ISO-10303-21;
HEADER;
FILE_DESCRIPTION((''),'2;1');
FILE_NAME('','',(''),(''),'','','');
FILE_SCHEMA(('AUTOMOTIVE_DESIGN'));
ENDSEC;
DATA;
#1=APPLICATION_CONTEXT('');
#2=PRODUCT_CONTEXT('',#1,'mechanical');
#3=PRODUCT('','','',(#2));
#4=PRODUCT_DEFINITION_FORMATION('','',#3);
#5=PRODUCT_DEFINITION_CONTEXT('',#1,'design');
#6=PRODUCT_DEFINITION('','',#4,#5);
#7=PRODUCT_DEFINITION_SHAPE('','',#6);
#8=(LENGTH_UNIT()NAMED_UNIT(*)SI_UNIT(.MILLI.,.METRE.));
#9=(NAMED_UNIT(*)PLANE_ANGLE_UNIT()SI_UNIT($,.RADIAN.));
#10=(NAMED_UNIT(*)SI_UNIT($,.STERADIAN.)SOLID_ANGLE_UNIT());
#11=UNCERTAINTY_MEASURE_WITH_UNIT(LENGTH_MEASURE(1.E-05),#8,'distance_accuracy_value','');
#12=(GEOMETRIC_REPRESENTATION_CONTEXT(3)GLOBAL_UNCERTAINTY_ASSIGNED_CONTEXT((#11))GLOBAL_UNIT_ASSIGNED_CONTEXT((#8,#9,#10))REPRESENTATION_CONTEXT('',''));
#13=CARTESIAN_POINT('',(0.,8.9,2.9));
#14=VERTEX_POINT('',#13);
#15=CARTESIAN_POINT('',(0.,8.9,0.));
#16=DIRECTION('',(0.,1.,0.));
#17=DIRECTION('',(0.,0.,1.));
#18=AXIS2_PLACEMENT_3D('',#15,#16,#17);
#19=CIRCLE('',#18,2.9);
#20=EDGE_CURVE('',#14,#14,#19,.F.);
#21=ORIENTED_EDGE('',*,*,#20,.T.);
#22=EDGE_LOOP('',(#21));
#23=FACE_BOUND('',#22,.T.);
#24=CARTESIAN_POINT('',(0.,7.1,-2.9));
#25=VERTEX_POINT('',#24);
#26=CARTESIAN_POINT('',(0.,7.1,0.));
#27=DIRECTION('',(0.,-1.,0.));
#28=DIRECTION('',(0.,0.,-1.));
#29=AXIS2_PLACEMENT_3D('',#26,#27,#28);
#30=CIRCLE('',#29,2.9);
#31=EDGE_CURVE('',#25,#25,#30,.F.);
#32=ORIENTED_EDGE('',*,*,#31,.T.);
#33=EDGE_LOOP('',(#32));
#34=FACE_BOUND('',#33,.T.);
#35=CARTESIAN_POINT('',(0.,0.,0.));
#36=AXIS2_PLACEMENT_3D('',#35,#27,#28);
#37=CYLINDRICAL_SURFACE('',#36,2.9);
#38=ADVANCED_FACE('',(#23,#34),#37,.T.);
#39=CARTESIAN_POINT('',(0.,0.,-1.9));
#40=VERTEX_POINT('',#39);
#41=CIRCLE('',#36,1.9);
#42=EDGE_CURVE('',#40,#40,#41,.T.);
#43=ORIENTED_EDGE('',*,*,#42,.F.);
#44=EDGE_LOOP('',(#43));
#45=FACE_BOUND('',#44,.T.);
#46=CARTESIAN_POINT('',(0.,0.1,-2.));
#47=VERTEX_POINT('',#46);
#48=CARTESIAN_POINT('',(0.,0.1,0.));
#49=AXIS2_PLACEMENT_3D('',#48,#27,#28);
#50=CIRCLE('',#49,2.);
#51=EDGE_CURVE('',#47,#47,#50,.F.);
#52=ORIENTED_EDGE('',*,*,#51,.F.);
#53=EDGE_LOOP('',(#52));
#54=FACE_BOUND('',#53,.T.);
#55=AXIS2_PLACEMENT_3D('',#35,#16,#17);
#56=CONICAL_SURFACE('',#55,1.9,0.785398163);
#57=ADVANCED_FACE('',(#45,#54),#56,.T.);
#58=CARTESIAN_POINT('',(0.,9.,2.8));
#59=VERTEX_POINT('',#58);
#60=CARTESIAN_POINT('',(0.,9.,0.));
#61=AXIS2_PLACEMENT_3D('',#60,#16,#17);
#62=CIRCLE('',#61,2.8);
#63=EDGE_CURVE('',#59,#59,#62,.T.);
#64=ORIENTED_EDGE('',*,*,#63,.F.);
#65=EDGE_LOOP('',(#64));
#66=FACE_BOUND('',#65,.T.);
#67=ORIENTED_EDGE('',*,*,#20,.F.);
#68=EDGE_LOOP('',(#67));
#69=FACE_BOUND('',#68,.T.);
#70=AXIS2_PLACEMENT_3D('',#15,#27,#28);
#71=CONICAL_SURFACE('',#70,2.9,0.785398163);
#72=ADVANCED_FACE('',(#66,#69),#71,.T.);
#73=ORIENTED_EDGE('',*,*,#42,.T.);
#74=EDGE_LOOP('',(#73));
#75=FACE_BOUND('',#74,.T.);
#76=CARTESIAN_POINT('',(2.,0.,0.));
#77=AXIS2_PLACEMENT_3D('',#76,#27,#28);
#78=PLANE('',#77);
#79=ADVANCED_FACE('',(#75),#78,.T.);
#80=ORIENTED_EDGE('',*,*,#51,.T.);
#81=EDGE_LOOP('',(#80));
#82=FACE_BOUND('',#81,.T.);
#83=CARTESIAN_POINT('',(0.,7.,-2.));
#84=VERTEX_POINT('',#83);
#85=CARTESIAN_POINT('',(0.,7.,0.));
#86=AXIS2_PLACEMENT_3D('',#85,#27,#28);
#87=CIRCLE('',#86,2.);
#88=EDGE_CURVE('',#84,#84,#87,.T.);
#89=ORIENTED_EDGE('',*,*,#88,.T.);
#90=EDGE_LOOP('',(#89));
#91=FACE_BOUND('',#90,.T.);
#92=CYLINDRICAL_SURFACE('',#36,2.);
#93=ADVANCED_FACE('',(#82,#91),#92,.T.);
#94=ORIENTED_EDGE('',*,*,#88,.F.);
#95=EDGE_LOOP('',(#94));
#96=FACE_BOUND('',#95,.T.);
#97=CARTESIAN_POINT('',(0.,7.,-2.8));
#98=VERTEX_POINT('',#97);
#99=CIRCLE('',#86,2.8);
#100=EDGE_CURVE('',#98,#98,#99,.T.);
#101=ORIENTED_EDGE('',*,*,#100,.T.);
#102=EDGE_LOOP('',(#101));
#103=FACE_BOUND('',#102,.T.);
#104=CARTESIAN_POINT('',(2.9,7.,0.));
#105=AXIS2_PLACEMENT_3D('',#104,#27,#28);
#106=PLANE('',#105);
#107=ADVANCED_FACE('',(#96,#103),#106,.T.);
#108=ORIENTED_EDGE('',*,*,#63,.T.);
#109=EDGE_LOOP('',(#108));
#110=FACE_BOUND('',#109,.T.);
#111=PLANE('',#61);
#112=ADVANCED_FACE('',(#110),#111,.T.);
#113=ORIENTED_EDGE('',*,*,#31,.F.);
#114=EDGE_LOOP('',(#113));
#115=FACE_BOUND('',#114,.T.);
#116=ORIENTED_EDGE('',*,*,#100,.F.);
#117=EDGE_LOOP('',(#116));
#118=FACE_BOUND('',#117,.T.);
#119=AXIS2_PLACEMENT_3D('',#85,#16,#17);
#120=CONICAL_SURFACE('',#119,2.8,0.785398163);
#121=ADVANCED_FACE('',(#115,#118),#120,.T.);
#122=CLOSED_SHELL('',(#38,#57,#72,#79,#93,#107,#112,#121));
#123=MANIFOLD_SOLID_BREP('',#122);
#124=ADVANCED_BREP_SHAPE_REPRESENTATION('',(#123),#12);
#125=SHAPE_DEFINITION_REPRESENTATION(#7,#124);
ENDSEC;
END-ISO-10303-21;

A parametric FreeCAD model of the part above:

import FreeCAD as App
import Part
import Sketcher
from FreeCAD import Vector
Q = App.Units.Quantity


def edges_at(feature, points):
    """Names of the edges that pass closest to the given points."""
    edges = feature.Shape.Edges
    near = lambda p: min(range(len(edges)), key=lambda i: edges[i].distToShape(Part.Vertex(*p))[0])
    return sorted({f"Edge{near(p) + 1}" for p in points})


def add_polygon(sketch, points):
    """Adds a closed chain of lines whose ends are joined by coincident constraints."""
    first, n = sketch.GeometryCount, len(points)
    for a, b in zip(points, points[1:] + points[:1]):
        sketch.addGeometry(Part.LineSegment(App.Vector(*a, 0), App.Vector(*b, 0)), False)
    for i in range(n):
        sketch.addConstraint(Sketcher.Constraint("Coincident", first + i, 2, first + (i + 1) % n, 1))

doc = App.newDocument("Part")
body = doc.addObject("PartDesign::Body", "Body")

# Sketch on XY plane
sketch1 = body.newObject("Sketcher::SketchObject", "Sketch")
sketch1.AttachmentSupport = (doc.getObject("XY_Plane"), [""])
sketch1.MapMode = "FlatFace"
add_polygon(sketch1, [(0, 9), (0, 0), (2, 0), (2, 7), (2.9, 7), (2.9, 9)])  # lines 0-5
sketch1.addConstraint([
    Sketcher.Constraint("Vertical", 0),
    Sketcher.Constraint("Horizontal", 1),
    Sketcher.Constraint("Vertical", 2),
    Sketcher.Constraint("Horizontal", 3),
    Sketcher.Constraint("Vertical", 4),
    Sketcher.Constraint("Horizontal", 5),
    Sketcher.Constraint("Coincident", 0, 2, -1, 1),
    Sketcher.Constraint("Equal", 1, 4),
    Sketcher.Constraint("DistanceX", 1, 1, 1, 2, Q("2 mm")),
    Sketcher.Constraint("DistanceY", 0, 2, 0, 1, Q("9 mm")),
    Sketcher.Constraint("DistanceX", 3, 1, 3, 2, Q("0.9 mm")),
])
revolution = body.newObject("PartDesign::Revolution", "Revolution")
revolution.Profile = sketch1
revolution.ReferenceAxis = (sketch1, ["V_Axis"])
revolution.Angle = 360
doc.recompute()

chamfer = body.newObject("PartDesign::Chamfer", "Chamfer")
chamfer.Base = (revolution, edges_at(revolution, [(-2, 0, 0), (-2.9, 7, 0), (-2.9, 9, 0)]))
chamfer.Size = 0.1

doc.recompute()
